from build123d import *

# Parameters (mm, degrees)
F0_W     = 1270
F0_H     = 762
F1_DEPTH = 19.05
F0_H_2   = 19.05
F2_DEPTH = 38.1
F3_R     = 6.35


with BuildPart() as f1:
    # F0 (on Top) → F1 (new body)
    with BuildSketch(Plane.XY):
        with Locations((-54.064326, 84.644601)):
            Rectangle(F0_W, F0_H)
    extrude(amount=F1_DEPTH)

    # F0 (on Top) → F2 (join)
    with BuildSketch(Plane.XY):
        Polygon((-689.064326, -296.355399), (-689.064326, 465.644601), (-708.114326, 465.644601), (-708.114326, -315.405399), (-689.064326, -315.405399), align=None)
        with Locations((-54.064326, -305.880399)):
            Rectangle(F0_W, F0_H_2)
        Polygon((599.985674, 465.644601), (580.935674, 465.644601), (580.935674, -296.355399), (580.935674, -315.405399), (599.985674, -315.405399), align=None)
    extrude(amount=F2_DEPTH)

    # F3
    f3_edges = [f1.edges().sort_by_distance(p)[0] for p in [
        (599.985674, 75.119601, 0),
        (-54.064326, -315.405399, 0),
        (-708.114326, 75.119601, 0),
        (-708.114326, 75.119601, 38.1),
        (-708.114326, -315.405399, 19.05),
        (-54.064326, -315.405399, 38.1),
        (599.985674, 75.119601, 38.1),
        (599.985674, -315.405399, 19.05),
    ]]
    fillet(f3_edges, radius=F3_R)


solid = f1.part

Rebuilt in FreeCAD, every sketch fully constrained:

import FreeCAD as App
import Part
import Sketcher

V = App.Vector
Q = App.Units.Quantity


def edges_at(feature, points):
    """Names of the edges that pass closest to the given points."""
    edges = feature.Shape.Edges
    near = lambda p: min(range(len(edges)), key=lambda i: edges[i].distToShape(Part.Vertex(*p))[0])
    return sorted({f"Edge{near(p) + 1}" for p in points})

doc = App.newDocument("Part")
params = doc.addObject("Spreadsheet::Sheet", "Params")
for row, (alias, value) in enumerate([
    ("sketch1_width", "50 in"),
    ("sketch1_height", "30 in"),
    ("pad1_length", "0.75 in"),
    ("sketch2_width", "50 in"),
    ("sketch2_height", "30 in"),
    ("sketch2_width2", "51.5 in"),
    ("sketch2_height2", "30.75 in"),
    ("pad2_length", "1.5 in"),
    ("fillet_radius", "0.25 in"),
], start=1):
    params.set(f"A{row}", alias)
    params.set(f"B{row}", "=" + value)
    params.setAlias(f"B{row}", alias)

body = doc.addObject("PartDesign::Body", "Body")

sketch1 = doc.addObject("Sketcher::SketchObject", "Sketch")
body.addObject(sketch1)
sketch1.AttachmentSupport = (doc.XY_Plane, [""])
sketch1.MapMode = "FlatFace"
sketch1.addGeometry([
    Part.LineSegment(V(-689, 466, 0), V(-689, -296, 0)),
    Part.LineSegment(V(-689, -296, 0), V(581, -296, 0)),
    Part.LineSegment(V(581, -296, 0), V(581, 466, 0)),
    Part.LineSegment(V(581, 466, 0), V(-689, 466, 0)),
], False)
sketch1.addConstraint([
    Sketcher.Constraint("Coincident", 0, 2, 1, 1),
    Sketcher.Constraint("Coincident", 1, 2, 2, 1),
    Sketcher.Constraint("Coincident", 2, 2, 3, 1),
    Sketcher.Constraint("Coincident", 3, 2, 0, 1),
    Sketcher.Constraint("Vertical", 0),
    Sketcher.Constraint("Horizontal", 1),
    Sketcher.Constraint("Vertical", 2),
    Sketcher.Constraint("Horizontal", 3),
    Sketcher.Constraint("DistanceX", 1, 1, 1, 2, Q("50 in")),
    Sketcher.Constraint("DistanceY", 0, 2, 0, 1, Q("30 in")),
    Sketcher.Constraint("DistanceY", 0, 2, -1, 1, Q("296.355399 mm")),
    Sketcher.Constraint("DistanceX", 0, 2, -1, 1, Q("689.064326 mm")),
])
sketch1.setExpression("Constraints[8]", "Params.sketch1_width")
sketch1.setExpression("Constraints[9]", "Params.sketch1_height")
pad1 = doc.addObject("PartDesign::Pad", "Pad")
body.addObject(pad1)
pad1.Profile = sketch1
pad1.setExpression("Length", "Params.pad1_length")

sketch2 = doc.addObject("Sketcher::SketchObject", "Sketch001")
body.addObject(sketch2)
sketch2.AttachmentSupport = (doc.XY_Plane, [""])
sketch2.MapMode = "FlatFace"
sketch2.addGeometry([
    Part.LineSegment(V(-689, 466, 0), V(-708, 466, 0)),
    Part.LineSegment(V(-708, 466, 0), V(-708, -315, 0)),
    Part.LineSegment(V(-708, -315, 0), V(600, -315, 0)),
    Part.LineSegment(V(600, -315, 0), V(600, 466, 0)),
    Part.LineSegment(V(600, 466, 0), V(581, 466, 0)),
    Part.LineSegment(V(581, 466, 0), V(581, -296, 0)),
    Part.LineSegment(V(581, -296, 0), V(-689, -296, 0)),
    Part.LineSegment(V(-689, -296, 0), V(-689, 466, 0)),
], False)
sketch2.addConstraint([
    Sketcher.Constraint("Coincident", 0, 2, 1, 1),
    Sketcher.Constraint("Coincident", 1, 2, 2, 1),
    Sketcher.Constraint("Coincident", 2, 2, 3, 1),
    Sketcher.Constraint("Coincident", 3, 2, 4, 1),
    Sketcher.Constraint("Coincident", 4, 2, 5, 1),
    Sketcher.Constraint("Coincident", 5, 2, 6, 1),
    Sketcher.Constraint("Coincident", 6, 2, 7, 1),
    Sketcher.Constraint("Coincident", 7, 2, 0, 1),
    Sketcher.Constraint("Horizontal", 0),
    Sketcher.Constraint("Vertical", 1),
    Sketcher.Constraint("Horizontal", 2),
    Sketcher.Constraint("Vertical", 3),
    Sketcher.Constraint("Horizontal", 4),
    Sketcher.Constraint("Vertical", 5),
    Sketcher.Constraint("Horizontal", 6),
    Sketcher.Constraint("Vertical", 7),
    Sketcher.Constraint("Horizontal", 0, 2, 3, 2),
    Sketcher.Constraint("Equal", 0, 4),
    Sketcher.Constraint("DistanceX", 6, 2, 6, 1, Q("50 in")),
    Sketcher.Constraint("DistanceY", 5, 2, 5, 1, Q("30 in")),
    Sketcher.Constraint("DistanceX", 2, 1, 2, 2, Q("51.5 in")),
    Sketcher.Constraint("DistanceY", 1, 2, 1, 1, Q("30.75 in")),
    Sketcher.Constraint("DistanceY", -1, 1, 0, 2, Q("465.644601 mm")),
    Sketcher.Constraint("DistanceX", 0, 2, -1, 1, Q("708.114326 mm")),
])
sketch2.setExpression("Constraints[18]", "Params.sketch2_width")
sketch2.setExpression("Constraints[19]", "Params.sketch2_height")
sketch2.setExpression("Constraints[20]", "Params.sketch2_width2")
sketch2.setExpression("Constraints[21]", "Params.sketch2_height2")
pad2 = doc.addObject("PartDesign::Pad", "Pad001")
body.addObject(pad2)
pad2.Profile = sketch2
pad2.setExpression("Length", "Params.pad2_length")
doc.recompute()

fillet = doc.addObject("PartDesign::Fillet", "Fillet")
body.addObject(fillet)
fillet.Base = (pad2, edges_at(pad2, [
    (599.986, 75.12, 0),
    (-54.064, -315.405, 0),
    (-708.114, 75.12, 0),
    (-708.114, 75.12, 38.1),
    (-708.114, -315.405, 19.05),
    (-54.064, -315.405, 38.1),
    (599.986, 75.12, 38.1),
    (599.986, -315.405, 19.05),
]))
fillet.setExpression("Radius", "Params.fillet_radius")

doc.recompute()
